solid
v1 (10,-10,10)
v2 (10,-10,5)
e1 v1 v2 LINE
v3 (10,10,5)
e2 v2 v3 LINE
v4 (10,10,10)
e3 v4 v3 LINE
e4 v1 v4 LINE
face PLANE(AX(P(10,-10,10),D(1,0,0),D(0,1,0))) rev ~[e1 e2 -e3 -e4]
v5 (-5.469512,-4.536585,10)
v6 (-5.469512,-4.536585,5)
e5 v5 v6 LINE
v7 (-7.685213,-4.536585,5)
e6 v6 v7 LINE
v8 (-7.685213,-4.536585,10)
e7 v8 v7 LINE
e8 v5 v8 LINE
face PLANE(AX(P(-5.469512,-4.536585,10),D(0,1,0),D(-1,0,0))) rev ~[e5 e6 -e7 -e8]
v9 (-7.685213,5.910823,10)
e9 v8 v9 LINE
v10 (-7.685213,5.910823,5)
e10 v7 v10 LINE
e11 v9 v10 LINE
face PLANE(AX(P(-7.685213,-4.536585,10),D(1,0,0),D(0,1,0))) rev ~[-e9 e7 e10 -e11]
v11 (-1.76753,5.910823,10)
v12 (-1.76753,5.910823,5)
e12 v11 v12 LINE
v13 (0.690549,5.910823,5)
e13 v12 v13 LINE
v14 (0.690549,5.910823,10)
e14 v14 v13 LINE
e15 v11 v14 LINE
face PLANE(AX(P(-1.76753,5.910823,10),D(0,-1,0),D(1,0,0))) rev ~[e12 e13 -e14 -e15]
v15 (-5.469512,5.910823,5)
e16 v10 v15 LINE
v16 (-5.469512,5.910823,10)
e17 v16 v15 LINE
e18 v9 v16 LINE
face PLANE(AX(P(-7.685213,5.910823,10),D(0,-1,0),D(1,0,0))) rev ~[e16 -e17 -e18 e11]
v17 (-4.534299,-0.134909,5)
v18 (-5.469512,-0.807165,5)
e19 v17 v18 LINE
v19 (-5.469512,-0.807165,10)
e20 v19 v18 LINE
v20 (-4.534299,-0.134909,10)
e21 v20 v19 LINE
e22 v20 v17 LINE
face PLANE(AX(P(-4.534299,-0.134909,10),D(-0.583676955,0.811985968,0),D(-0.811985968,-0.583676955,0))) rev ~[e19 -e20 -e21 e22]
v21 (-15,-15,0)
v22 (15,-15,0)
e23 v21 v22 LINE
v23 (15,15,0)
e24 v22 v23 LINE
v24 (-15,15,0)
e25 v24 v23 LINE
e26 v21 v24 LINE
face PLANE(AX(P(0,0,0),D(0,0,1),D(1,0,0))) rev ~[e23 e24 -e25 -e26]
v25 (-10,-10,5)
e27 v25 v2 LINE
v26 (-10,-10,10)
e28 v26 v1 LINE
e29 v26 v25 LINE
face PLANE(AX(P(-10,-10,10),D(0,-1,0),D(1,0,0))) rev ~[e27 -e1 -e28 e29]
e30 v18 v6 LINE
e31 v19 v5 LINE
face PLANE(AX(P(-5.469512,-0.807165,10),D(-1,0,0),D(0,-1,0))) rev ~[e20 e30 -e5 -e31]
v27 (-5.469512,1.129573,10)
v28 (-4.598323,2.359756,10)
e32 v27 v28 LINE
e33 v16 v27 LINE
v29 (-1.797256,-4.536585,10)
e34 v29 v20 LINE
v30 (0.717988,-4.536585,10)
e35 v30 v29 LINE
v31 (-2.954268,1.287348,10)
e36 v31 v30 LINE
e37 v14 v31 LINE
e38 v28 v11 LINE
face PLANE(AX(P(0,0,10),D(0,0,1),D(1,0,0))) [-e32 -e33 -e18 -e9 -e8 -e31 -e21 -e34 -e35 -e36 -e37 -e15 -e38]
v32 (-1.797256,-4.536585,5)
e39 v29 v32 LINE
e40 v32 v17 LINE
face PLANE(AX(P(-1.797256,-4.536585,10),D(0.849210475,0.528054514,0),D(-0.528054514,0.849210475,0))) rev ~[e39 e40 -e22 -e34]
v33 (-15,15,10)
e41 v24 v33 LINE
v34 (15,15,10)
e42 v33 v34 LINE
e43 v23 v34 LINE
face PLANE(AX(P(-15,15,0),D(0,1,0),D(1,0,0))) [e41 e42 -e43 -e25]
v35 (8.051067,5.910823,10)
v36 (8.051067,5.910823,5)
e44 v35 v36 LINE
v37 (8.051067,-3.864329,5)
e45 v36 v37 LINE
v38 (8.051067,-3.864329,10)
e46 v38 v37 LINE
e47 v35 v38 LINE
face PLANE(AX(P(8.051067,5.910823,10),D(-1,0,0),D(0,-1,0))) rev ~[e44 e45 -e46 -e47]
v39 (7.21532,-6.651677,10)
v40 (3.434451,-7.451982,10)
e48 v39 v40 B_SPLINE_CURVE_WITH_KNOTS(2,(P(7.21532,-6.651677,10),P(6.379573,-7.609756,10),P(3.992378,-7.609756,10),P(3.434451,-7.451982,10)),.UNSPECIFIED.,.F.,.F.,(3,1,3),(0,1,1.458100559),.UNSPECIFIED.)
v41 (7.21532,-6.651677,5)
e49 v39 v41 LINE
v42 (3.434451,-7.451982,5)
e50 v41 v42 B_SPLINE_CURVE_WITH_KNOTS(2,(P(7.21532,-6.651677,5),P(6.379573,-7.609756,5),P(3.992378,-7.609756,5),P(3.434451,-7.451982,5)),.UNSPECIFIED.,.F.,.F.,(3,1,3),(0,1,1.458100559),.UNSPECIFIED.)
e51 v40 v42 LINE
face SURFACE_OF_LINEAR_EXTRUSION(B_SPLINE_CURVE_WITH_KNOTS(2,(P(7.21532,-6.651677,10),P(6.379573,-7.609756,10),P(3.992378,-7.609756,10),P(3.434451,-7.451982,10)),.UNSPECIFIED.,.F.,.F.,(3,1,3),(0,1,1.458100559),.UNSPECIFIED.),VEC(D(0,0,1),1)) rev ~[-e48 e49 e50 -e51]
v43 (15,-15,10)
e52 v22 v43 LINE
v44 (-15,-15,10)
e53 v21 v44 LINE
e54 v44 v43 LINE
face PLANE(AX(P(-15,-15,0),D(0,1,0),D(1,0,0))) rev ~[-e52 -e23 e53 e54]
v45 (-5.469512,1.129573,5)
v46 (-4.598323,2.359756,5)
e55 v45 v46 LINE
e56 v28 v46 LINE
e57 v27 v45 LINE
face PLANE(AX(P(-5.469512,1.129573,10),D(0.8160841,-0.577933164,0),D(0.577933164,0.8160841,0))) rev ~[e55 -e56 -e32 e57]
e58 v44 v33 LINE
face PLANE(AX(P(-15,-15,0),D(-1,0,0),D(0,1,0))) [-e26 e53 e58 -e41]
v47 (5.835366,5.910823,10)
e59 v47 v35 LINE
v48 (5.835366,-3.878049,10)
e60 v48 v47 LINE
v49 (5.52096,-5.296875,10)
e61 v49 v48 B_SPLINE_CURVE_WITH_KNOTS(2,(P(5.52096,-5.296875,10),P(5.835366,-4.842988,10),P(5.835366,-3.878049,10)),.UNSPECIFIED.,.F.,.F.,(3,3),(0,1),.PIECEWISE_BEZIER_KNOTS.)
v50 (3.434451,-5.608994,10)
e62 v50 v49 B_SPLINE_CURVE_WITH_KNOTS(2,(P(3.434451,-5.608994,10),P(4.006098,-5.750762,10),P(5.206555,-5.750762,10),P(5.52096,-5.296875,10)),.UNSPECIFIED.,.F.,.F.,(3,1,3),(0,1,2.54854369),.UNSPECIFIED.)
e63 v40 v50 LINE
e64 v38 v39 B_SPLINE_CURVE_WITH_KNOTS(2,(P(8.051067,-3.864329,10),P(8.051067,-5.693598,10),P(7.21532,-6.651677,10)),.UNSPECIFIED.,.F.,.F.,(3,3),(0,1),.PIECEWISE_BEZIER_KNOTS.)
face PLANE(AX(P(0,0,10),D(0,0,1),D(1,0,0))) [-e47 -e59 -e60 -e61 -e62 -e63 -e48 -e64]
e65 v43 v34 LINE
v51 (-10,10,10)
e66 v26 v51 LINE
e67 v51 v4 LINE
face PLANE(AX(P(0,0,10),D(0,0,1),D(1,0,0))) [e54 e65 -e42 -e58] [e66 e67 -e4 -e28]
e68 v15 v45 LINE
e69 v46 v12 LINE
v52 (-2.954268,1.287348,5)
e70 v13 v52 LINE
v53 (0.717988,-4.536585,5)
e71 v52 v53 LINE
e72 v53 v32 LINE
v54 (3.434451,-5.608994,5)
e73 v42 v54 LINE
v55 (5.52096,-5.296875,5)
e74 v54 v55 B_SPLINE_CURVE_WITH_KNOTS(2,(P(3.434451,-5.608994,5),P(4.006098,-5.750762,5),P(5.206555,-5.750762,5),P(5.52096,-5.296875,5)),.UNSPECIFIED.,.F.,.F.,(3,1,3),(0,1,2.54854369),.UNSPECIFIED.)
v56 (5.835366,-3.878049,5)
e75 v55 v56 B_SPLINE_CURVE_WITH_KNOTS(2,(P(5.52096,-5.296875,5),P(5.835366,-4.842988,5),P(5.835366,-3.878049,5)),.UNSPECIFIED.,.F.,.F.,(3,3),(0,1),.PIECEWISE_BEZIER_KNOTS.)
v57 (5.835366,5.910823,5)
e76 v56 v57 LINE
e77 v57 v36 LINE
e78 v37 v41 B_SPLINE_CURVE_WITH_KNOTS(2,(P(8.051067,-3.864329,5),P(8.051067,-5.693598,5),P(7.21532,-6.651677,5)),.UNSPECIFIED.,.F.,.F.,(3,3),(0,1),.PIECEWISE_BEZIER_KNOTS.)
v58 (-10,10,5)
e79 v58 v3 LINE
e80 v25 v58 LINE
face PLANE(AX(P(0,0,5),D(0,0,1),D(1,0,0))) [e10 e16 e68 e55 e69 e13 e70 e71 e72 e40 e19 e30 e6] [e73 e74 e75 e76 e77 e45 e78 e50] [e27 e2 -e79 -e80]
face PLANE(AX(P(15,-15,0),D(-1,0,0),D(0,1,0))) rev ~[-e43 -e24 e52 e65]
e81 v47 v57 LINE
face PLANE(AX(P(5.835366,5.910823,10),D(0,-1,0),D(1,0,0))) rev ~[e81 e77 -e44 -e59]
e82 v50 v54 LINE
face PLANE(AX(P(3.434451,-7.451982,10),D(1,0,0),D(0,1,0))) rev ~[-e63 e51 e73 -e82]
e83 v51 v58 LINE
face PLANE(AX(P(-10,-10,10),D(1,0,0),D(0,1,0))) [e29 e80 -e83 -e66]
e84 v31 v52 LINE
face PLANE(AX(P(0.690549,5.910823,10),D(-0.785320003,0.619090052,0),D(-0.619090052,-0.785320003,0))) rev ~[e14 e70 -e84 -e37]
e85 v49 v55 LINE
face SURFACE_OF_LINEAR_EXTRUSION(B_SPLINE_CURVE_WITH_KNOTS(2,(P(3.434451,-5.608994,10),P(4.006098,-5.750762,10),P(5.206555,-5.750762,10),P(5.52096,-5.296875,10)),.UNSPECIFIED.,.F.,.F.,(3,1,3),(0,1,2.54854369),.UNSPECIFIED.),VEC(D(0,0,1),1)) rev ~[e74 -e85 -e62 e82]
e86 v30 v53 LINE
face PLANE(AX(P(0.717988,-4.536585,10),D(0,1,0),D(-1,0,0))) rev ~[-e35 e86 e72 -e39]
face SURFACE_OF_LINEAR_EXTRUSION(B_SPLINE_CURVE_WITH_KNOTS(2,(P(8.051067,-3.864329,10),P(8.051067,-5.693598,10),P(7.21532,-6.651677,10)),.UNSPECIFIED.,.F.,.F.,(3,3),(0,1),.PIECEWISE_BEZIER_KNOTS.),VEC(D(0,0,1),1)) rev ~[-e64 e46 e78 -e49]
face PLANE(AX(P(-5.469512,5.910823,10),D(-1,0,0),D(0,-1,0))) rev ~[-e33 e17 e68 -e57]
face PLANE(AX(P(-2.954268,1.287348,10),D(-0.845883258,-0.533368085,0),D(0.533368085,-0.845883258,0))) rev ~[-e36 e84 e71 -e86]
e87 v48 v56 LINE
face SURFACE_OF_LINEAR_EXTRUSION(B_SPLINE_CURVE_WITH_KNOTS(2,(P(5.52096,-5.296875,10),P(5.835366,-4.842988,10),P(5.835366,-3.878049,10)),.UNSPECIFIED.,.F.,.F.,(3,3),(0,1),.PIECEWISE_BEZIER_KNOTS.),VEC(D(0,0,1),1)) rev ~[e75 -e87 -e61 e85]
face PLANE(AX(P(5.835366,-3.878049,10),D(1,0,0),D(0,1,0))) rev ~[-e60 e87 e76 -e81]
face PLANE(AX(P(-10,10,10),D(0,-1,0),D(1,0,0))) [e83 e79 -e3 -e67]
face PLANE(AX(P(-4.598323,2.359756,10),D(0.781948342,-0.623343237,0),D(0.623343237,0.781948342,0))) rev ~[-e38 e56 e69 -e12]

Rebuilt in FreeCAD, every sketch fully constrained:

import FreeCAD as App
import Part
import Sketcher

V = App.Vector


def add_polygon(sketch, points):
    """Adds a closed chain of lines whose ends are joined by coincident constraints."""
    first, n = sketch.GeometryCount, len(points)
    for a, b in zip(points, points[1:] + points[:1]):
        sketch.addGeometry(Part.LineSegment(App.Vector(*a, 0), App.Vector(*b, 0)), False)
    for i in range(n):
        sketch.addConstraint(Sketcher.Constraint("Coincident", first + i, 2, first + (i + 1) % n, 1))

doc = App.newDocument("Part")
body = doc.addObject("PartDesign::Body", "Body")

# Sketch on XY plane
sketch1 = body.newObject("Sketcher::SketchObject", "Sketch")
sketch1.AttachmentSupport = (doc.getObject("XY_Plane"), [""])
sketch1.MapMode = "FlatFace"
add_polygon(sketch1, [(-15, 15), (-15, -15), (15, -15), (15, 15)])  # lines 0-3
sketch1.addConstraint(Sketcher.Constraint("Vertical", 0))
sketch1.addConstraint(Sketcher.Constraint("Horizontal", 1))
sketch1.addConstraint(Sketcher.Constraint("Vertical", 2))
sketch1.addConstraint(Sketcher.Constraint("Horizontal", 3))
sketch1.addConstraint(Sketcher.Constraint("Symmetric", 0, 2, 2, 2, -1, 1))
sketch1.addConstraint(Sketcher.Constraint("Equal", 3, 0))
sketch1.addConstraint(Sketcher.Constraint("DistanceX", 1, 1, 1, 2, 30.0))
pad1 = body.newObject("PartDesign::Pad", "Pad")
pad1.Profile = sketch1
pad1.Length = 10

# Sketch on XY plane
sketch2 = body.newObject("Sketcher::SketchObject", "Sketch001")
sketch2.AttachmentSupport = (doc.getObject("XY_Plane"), [""])
sketch2.MapMode = "FlatFace"
sketch2.AttachmentOffset = App.Placement(V(0, 0, 10), App.Rotation())
add_polygon(sketch2, [(-10, 10), (-10, -10), (10, -10), (10, 10)])  # lines 0-3
add_polygon(sketch2, [(0.690549, 5.910823), (-2.954268, 1.287348), (0.717988, -4.536585), (-1.797256, -4.536585), (-4.534299, -0.134909), (-5.469512, -0.807165), (-5.469512, -4.536585), (-7.685213, -4.536585), (-7.685213, 5.910823), (-5.469512, 5.910823), (-5.469512, 1.129573), (-4.598323, 2.359756), (-1.76753, 5.910823)])  # lines 4-16
sketch2.addGeometry(Part.BSplineCurve([V(8.051067, -3.864329, 0), V(8.051067, -5.693598, 0), V(7.21532, -6.651677, 0)], [3, 3], [0, 1], False, 2, [1, 1, 1], False), False)  # 17
sketch2.addGeometry(Part.BSplineCurve([V(7.21532, -6.651677, 0), V(6.379573, -7.609756, 0), V(3.992378, -7.609756, 0), V(3.434451, -7.451982, 0)], [3, 1, 3], [0, 1, 1.458100559], False, 2, [1, 1, 1, 1], False), False)  # 18
sketch2.addGeometry(Part.LineSegment(V(3.434451, -7.451982, 0), V(3.434451, -5.608994, 0)), False)  # 19
sketch2.addGeometry(Part.BSplineCurve([V(3.434451, -5.608994, 0), V(4.006098, -5.750762, 0), V(5.206555, -5.750762, 0), V(5.52096, -5.296875, 0)], [3, 1, 3], [0, 1, 2.54854369], False, 2, [1, 1, 1, 1], False), False)  # 20
sketch2.addGeometry(Part.BSplineCurve([V(5.52096, -5.296875, 0), V(5.835366, -4.842988, 0), V(5.835366, -3.878049, 0)], [3, 3], [0, 1], False, 2, [1, 1, 1], False), False)  # 21
sketch2.addGeometry(Part.LineSegment(V(5.835366, -3.878049, 0), V(5.835366, 5.910823, 0)), False)  # 22
sketch2.addGeometry(Part.LineSegment(V(5.835366, 5.910823, 0), V(8.051067, 5.910823, 0)), False)  # 23
sketch2.addGeometry(Part.LineSegment(V(8.051067, 5.910823, 0), V(8.051067, -3.864329, 0)), False)  # 24
sketch2.addConstraint(Sketcher.Constraint("Block", 17))
sketch2.addConstraint(Sketcher.Constraint("Block", 18))
sketch2.addConstraint(Sketcher.Constraint("Block", 20))
sketch2.addConstraint(Sketcher.Constraint("Block", 21))
sketch2.addConstraint(Sketcher.Constraint("Coincident", 18, 2, 19, 1))
sketch2.addConstraint(Sketcher.Constraint("Coincident", 19, 2, 20, 1))
sketch2.addConstraint(Sketcher.Constraint("Coincident", 21, 2, 22, 1))
sketch2.addConstraint(Sketcher.Constraint("Coincident", 22, 2, 23, 1))
sketch2.addConstraint(Sketcher.Constraint("Coincident", 23, 2, 24, 1))
sketch2.addConstraint(Sketcher.Constraint("Coincident", 24, 2, 17, 1))
sketch2.addConstraint(Sketcher.Constraint("Vertical", 0))
sketch2.addConstraint(Sketcher.Constraint("Horizontal", 1))
sketch2.addConstraint(Sketcher.Constraint("Vertical", 2))
sketch2.addConstraint(Sketcher.Constraint("Horizontal", 3))
sketch2.addConstraint(Sketcher.Constraint("Horizontal", 6))
sketch2.addConstraint(Sketcher.Constraint("Vertical", 9))
sketch2.addConstraint(Sketcher.Constraint("Horizontal", 10))
sketch2.addConstraint(Sketcher.Constraint("Vertical", 11))
sketch2.addConstraint(Sketcher.Constraint("Horizontal", 12))
sketch2.addConstraint(Sketcher.Constraint("Vertical", 13))
sketch2.addConstraint(Sketcher.Constraint("Horizontal", 16))
sketch2.addConstraint(Sketcher.Constraint("Vertical", 22))
sketch2.addConstraint(Sketcher.Constraint("Horizontal", 23))
sketch2.addConstraint(Sketcher.Constraint("Vertical", 24))
sketch2.addConstraint(Sketcher.Constraint("DistanceX", 1, 1, 1, 2, 20.0))
sketch2.addConstraint(Sketcher.Constraint("DistanceY", 0, 2, 0, 1, 20.0))
sketch2.addConstraint(Sketcher.Constraint("DistanceX", 0, 2, -1, 1, 10.0))
sketch2.addConstraint(Sketcher.Constraint("DistanceY", 0, 2, -1, 1, 10.0))
sketch2.addConstraint(Sketcher.Constraint("DistanceX", 10, 2, 10, 1, 2.215701))
sketch2.addConstraint(Sketcher.Constraint("DistanceX", 12, 1, 12, 2, 2.215701))
sketch2.addConstraint(Sketcher.Constraint("DistanceX", 16, 1, 16, 2, 2.458079))
sketch2.addConstraint(Sketcher.Constraint("DistanceY", 9, 2, 9, 1, 3.729421))
sketch2.addConstraint(Sketcher.Constraint("DistanceY", 11, 1, 11, 2, 10.447409))
sketch2.addConstraint(Sketcher.Constraint("DistanceY", 13, 2, 13, 1, 4.78125))
sketch2.addConstraint(Sketcher.Constraint("DistanceY", 22, 1, 22, 2, 9.788872))
sketch2.addConstraint(Sketcher.Constraint("DistanceX", 7, 2, -1, 1, 4.534299))
sketch2.addConstraint(Sketcher.Constraint("DistanceX", 8, 2, 5, 2, 6.1875))
sketch2.addConstraint(Sketcher.Constraint("Distance", 5, 6.885032))
sketch2.addConstraint(Sketcher.Constraint("Distance", 8, 1.151761))
sketch2.addConstraint(Sketcher.Constraint("Distance", 14, 1.507422))
sketch2.addConstraint(Sketcher.Constraint("DistanceX", 6, 2, 6, 1, 2.515244))
sketch2.addConstraint(Sketcher.Constraint("DistanceX", 4, 2, -1, 1, 2.954268))
sketch2.addConstraint(Sketcher.Constraint("DistanceY", 7, 2, -1, 1, 0.134909))
sketch2.addConstraint(Sketcher.Constraint("DistanceX", 15, 2, -1, 1, 1.76753))
sketch2.addConstraint(Sketcher.Constraint("DistanceY", 6, 2, 8, 2, 3.729421))
sketch2.addConstraint(Sketcher.Constraint("DistanceY", 7, 2, 11, 2, 6.045732))
sketch2.addConstraint(Sketcher.Constraint("DistanceX", 13, 2, 14, 2, 0.871189))
sketch2.addConstraint(Sketcher.Constraint("DistanceY", 13, 2, 15, 2, 4.78125))
pocket1 = body.newObject("PartDesign::Pocket", "Pocket")
pocket1.Profile = sketch2
pocket1.Length = 5

doc.recompute()
